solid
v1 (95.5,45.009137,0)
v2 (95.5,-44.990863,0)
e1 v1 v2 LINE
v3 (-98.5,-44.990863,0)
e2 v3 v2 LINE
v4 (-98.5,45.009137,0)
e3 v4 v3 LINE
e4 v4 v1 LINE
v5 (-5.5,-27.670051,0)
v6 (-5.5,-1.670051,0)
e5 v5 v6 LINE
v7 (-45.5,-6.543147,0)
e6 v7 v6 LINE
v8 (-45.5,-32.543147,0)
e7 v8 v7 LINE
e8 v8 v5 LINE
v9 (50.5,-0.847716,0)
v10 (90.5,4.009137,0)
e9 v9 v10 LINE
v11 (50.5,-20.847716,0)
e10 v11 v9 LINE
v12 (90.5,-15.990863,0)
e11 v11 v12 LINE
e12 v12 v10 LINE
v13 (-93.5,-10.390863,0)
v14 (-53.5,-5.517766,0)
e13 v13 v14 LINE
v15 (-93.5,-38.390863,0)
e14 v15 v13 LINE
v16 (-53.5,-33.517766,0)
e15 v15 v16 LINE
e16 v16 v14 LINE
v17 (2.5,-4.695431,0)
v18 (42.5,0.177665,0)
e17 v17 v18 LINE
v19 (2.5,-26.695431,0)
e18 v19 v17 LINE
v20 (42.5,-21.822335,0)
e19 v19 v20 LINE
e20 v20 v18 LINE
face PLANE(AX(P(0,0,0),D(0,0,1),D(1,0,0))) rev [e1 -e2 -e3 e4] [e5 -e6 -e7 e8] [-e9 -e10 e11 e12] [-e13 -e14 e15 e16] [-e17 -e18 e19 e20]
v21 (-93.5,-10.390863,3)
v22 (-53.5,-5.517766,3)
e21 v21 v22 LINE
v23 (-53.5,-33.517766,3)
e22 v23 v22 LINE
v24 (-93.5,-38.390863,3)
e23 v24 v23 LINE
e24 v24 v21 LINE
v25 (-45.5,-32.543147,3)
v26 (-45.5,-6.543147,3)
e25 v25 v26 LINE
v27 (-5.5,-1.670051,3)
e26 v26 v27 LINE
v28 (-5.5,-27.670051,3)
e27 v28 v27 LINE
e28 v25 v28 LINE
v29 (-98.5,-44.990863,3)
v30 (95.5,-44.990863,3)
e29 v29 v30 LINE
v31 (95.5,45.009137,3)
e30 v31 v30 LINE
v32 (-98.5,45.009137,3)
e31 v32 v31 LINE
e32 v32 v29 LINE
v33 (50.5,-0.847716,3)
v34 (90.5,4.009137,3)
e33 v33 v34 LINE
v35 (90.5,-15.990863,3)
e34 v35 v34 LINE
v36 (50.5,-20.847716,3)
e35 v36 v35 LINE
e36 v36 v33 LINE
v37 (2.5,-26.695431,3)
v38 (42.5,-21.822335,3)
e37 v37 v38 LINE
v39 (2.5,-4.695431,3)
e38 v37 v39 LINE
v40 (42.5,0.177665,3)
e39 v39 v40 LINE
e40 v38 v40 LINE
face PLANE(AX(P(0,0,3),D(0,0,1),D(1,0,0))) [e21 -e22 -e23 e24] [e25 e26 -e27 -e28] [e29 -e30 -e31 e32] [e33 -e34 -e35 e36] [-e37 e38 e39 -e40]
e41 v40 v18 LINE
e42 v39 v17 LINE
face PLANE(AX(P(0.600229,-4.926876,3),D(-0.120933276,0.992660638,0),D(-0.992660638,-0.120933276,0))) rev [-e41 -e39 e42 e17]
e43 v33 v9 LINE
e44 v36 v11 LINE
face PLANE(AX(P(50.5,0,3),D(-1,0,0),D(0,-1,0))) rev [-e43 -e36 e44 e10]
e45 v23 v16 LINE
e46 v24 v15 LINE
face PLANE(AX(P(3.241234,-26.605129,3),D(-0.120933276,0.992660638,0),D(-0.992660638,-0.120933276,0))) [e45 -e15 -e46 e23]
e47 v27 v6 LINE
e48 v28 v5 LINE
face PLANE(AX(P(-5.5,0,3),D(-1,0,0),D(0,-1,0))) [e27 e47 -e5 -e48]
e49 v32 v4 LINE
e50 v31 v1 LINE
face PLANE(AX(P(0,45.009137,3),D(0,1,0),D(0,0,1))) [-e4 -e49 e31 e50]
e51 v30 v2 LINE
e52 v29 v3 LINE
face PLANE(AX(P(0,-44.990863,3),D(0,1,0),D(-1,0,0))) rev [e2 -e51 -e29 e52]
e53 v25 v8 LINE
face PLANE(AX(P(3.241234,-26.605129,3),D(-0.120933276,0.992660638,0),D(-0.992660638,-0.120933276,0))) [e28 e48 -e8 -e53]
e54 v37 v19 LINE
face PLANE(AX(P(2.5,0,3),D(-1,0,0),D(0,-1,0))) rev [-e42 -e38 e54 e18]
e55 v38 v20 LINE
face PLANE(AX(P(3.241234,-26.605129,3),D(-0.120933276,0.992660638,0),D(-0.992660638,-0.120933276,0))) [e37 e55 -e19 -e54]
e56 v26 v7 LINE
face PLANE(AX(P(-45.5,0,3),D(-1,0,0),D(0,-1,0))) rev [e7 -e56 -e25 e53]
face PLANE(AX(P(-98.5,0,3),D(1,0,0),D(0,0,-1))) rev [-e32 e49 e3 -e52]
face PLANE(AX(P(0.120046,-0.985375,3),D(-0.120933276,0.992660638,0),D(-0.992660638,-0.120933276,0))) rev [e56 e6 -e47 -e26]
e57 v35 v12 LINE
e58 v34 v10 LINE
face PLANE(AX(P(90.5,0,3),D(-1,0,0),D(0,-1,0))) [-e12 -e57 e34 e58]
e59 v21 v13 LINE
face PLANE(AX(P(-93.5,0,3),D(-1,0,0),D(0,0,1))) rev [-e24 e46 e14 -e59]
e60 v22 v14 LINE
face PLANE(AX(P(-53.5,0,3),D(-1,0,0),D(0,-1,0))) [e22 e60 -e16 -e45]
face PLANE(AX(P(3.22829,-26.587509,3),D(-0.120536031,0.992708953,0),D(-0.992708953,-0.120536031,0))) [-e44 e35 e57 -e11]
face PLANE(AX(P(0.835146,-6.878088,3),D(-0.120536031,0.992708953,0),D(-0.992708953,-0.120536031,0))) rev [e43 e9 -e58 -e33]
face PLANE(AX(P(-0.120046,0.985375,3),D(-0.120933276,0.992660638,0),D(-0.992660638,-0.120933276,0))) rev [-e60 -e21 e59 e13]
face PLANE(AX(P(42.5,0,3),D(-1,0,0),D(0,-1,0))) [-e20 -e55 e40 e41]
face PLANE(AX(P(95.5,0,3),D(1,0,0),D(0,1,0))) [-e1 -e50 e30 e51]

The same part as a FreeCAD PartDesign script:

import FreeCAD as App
import Part
import Sketcher
from FreeCAD import Vector

doc = App.newDocument("Part")
params = doc.addObject("Spreadsheet::Sheet", "Params")
for row, (alias, value) in enumerate([
    ("sketch1_width", "194 mm"),
    ("sketch1_height", "90 mm"),
    ("sketch1_height2", "28 mm"),
    ("sketch1_height3", "26 mm"),
    ("sketch1_height4", "22 mm"),
    ("pad1_length", "3 mm"),
], start=1):
    params.set(f"A{row}", alias)
    params.set(f"B{row}", "=" + value)
    params.setAlias(f"B{row}", alias)

body = doc.addObject("PartDesign::Body", "Body")

# Sketch on XY plane
sketch1 = body.newObject("Sketcher::SketchObject", "Sketch")
sketch1.AttachmentSupport = (doc.getObject("XY_Plane"), [""])
sketch1.MapMode = "FlatFace"
sketch1.addGeometry([
    Part.LineSegment(Vector(-98, 45, 0), Vector(-98, -45, 0)),  # 0
    Part.LineSegment(Vector(-98, -45, 0), Vector(96, -45, 0)),  # 1
    Part.LineSegment(Vector(96, -45, 0), Vector(96, 45, 0)),  # 2
    Part.LineSegment(Vector(96, 45, 0), Vector(-98, 45, 0)),  # 3
    Part.LineSegment(Vector(-54, -34, 0), Vector(-94, -38, 0)),  # 4
    Part.LineSegment(Vector(-94, -38, 0), Vector(-94, -10, 0)),  # 5
    Part.LineSegment(Vector(-94, -10, 0), Vector(-54, -6, 0)),  # 6
    Part.LineSegment(Vector(-54, -6, 0), Vector(-54, -34, 0)),  # 7
    Part.LineSegment(Vector(-6, -28, 0), Vector(-46, -33, 0)),  # 8
    Part.LineSegment(Vector(-46, -33, 0), Vector(-46, -7, 0)),  # 9
    Part.LineSegment(Vector(-46, -7, 0), Vector(-6, -2, 0)),  # 10
    Part.LineSegment(Vector(-6, -2, 0), Vector(-6, -28, 0)),  # 11
    Part.LineSegment(Vector(42, -22, 0), Vector(2, -27, 0)),  # 12
    Part.LineSegment(Vector(2, -27, 0), Vector(2, -5, 0)),  # 13
    Part.LineSegment(Vector(2, -5, 0), Vector(42, 0, 0)),  # 14
    Part.LineSegment(Vector(42, 0, 0), Vector(42, -22, 0)),  # 15
    Part.LineSegment(Vector(90, -16, 0), Vector(50, -21, 0)),  # 16
    Part.LineSegment(Vector(50, -21, 0), Vector(50, -1, 0)),  # 17
    Part.LineSegment(Vector(50, -1, 0), Vector(90, 4, 0)),  # 18
    Part.LineSegment(Vector(90, 4, 0), Vector(90, -16, 0)),  # 19
], False)
sketch1.addConstraint([
    Sketcher.Constraint("Coincident", 0, 2, 1, 1),
    Sketcher.Constraint("Coincident", 1, 2, 2, 1),
    Sketcher.Constraint("Coincident", 2, 2, 3, 1),
    Sketcher.Constraint("Coincident", 3, 2, 0, 1),
    Sketcher.Constraint("Coincident", 4, 2, 5, 1),
    Sketcher.Constraint("Coincident", 5, 2, 6, 1),
    Sketcher.Constraint("Coincident", 6, 2, 7, 1),
    Sketcher.Constraint("Coincident", 7, 2, 4, 1),
    Sketcher.Constraint("Coincident", 8, 2, 9, 1),
    Sketcher.Constraint("Coincident", 9, 2, 10, 1),
    Sketcher.Constraint("Coincident", 10, 2, 11, 1),
    Sketcher.Constraint("Coincident", 11, 2, 8, 1),
    Sketcher.Constraint("Coincident", 12, 2, 13, 1),
    Sketcher.Constraint("Coincident", 13, 2, 14, 1),
    Sketcher.Constraint("Coincident", 14, 2, 15, 1),
    Sketcher.Constraint("Coincident", 15, 2, 12, 1),
    Sketcher.Constraint("Coincident", 16, 2, 17, 1),
    Sketcher.Constraint("Coincident", 17, 2, 18, 1),
    Sketcher.Constraint("Coincident", 18, 2, 19, 1),
    Sketcher.Constraint("Coincident", 19, 2, 16, 1),
    Sketcher.Constraint("Vertical", 0),
    Sketcher.Constraint("Horizontal", 1),
    Sketcher.Constraint("Vertical", 2),
    Sketcher.Constraint("Horizontal", 3),
    Sketcher.Constraint("Vertical", 5),
    Sketcher.Constraint("Vertical", 7),
    Sketcher.Constraint("Vertical", 9),
    Sketcher.Constraint("Vertical", 11),
    Sketcher.Constraint("Vertical", 13),
    Sketcher.Constraint("Vertical", 15),
    Sketcher.Constraint("Vertical", 17),
    Sketcher.Constraint("Vertical", 19),
    Sketcher.Constraint("Parallel", 4, 6),
    Sketcher.Constraint("Parallel", 6, 8),
    Sketcher.Constraint("Parallel", 8, 10),
    Sketcher.Constraint("Parallel", 10, 12),
    Sketcher.Constraint("Parallel", 12, 14),
    Sketcher.Constraint("Parallel", 16, 18),
    Sketcher.Constraint("Equal", 6, 8),
    Sketcher.Constraint("Equal", 10, 12),
    Sketcher.Constraint("DistanceX", 1, 1, 1, 2, 194.0),
    Sketcher.Constraint("DistanceY", 0, 2, 0, 1, 90.0),
    Sketcher.Constraint("DistanceY", 5, 1, 5, 2, 28.0),
    Sketcher.Constraint("DistanceY", 9, 1, 9, 2, 26.0),
    Sketcher.Constraint("DistanceY", 13, 1, 13, 2, 22.0),
    Sketcher.Constraint("DistanceY", 17, 1, 17, 2, 20.0),
    Sketcher.Constraint("DistanceX", 0, 2, 4, 2, 5.0),
    Sketcher.Constraint("DistanceX", 5, 2, 6, 2, 40.0),
    Sketcher.Constraint("DistanceX", 7, 2, 8, 2, 8.0),
    Sketcher.Constraint("DistanceX", 11, 2, 12, 2, 8.0),
    Sketcher.Constraint("DistanceX", 15, 2, 16, 2, 8.0),
    Sketcher.Constraint("DistanceX", 17, 2, 18, 2, 40.0),
    Sketcher.Constraint("DistanceY", 18, 2, 2, 2, 41.0),
    Sketcher.Constraint("DistanceX", 0, 2, -1, 1, 98.5),
    Sketcher.Constraint("DistanceY", 0, 2, 4, 2, 6.6),
    Sketcher.Constraint("DistanceY", 10, 2, -1, 1, 1.670051),
    Sketcher.Constraint("DistanceY", 12, 2, -1, 1, 26.695431),
    Sketcher.Constraint("DistanceY", 7, 2, 8, 2, 0.974619),
    Sketcher.Constraint("DistanceY", 15, 2, 16, 2, 0.974619),
    Sketcher.Constraint("Distance", 4, 40.295745),
])
sketch1.setExpression("Constraints[40]", "Params.sketch1_width")
sketch1.setExpression("Constraints[41]", "Params.sketch1_height")
sketch1.setExpression("Constraints[42]", "Params.sketch1_height2")
sketch1.setExpression("Constraints[43]", "Params.sketch1_height3")
sketch1.setExpression("Constraints[44]", "Params.sketch1_height4")
pad1 = body.newObject("PartDesign::Pad", "Pad")
pad1.Profile = sketch1
pad1.setExpression("Length", "Params.pad1_length")

doc.recompute()
